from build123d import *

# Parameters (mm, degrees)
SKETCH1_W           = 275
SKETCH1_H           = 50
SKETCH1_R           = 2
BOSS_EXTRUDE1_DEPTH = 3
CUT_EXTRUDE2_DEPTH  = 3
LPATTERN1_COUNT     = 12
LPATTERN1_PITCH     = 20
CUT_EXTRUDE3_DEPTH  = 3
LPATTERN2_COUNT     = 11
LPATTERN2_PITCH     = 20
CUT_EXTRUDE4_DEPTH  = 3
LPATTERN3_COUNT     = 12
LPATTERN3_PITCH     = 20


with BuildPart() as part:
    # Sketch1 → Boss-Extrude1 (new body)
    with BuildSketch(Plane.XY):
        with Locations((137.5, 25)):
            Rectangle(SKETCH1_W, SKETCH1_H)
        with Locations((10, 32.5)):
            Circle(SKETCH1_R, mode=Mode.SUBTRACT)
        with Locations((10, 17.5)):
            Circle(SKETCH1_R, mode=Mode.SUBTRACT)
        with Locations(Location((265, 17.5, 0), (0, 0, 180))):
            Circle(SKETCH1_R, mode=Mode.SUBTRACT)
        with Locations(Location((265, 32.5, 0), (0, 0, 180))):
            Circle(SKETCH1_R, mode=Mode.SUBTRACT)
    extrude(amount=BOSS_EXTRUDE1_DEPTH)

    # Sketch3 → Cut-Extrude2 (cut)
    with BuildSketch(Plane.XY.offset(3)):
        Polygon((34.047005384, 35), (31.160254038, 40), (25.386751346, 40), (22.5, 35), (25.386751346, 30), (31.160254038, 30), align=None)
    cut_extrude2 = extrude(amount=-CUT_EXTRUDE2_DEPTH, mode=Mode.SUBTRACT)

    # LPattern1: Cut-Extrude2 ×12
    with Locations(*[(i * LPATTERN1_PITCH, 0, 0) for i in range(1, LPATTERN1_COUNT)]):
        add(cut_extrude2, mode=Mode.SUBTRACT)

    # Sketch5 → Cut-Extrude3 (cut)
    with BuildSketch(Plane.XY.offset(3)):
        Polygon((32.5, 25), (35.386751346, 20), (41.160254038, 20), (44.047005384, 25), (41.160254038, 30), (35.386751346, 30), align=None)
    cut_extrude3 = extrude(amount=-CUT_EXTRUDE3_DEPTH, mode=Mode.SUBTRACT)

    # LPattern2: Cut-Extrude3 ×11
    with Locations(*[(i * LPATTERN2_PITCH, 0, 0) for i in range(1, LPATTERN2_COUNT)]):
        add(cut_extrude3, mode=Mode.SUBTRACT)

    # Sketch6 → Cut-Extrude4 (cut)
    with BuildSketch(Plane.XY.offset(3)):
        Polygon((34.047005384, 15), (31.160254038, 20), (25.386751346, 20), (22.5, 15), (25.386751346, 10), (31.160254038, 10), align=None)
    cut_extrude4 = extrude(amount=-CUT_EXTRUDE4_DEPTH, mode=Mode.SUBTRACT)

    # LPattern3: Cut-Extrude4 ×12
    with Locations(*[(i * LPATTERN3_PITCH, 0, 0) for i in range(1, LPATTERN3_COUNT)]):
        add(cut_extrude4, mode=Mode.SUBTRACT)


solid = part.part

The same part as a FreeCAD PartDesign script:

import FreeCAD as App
import Part
import Sketcher
from FreeCAD import Vector
Q = App.Units.Quantity


def add_polygon(sketch, points):
    """Adds a closed chain of lines whose ends are joined by coincident constraints."""
    first, n = sketch.GeometryCount, len(points)
    for a, b in zip(points, points[1:] + points[:1]):
        sketch.addGeometry(Part.LineSegment(App.Vector(*a, 0), App.Vector(*b, 0)), False)
    for i in range(n):
        sketch.addConstraint(Sketcher.Constraint("Coincident", first + i, 2, first + (i + 1) % n, 1))

doc = App.newDocument("Part")
body = doc.addObject("PartDesign::Body", "Body")

# Sketch on XY plane
sketch1 = body.newObject("Sketcher::SketchObject", "Sketch")
sketch1.AttachmentSupport = (doc.getObject("XY_Plane"), [""])
sketch1.MapMode = "FlatFace"
add_polygon(sketch1, [(0, 50), (0, 0), (275, 0), (275, 50)])  # lines 0-3
sketch1.addGeometry(Part.Circle(Vector(10, 17.5, 0), Vector(0, 0, 1), 2), False)  # 4
sketch1.addGeometry(Part.Circle(Vector(265, 17.5, 0), Vector(0, 0, 1), 2), False)  # 5
sketch1.addGeometry(Part.Circle(Vector(10, 32.5, 0), Vector(0, 0, 1), 2), False)  # 6
sketch1.addGeometry(Part.Circle(Vector(265, 32.5, 0), Vector(0, 0, 1), 2), False)  # 7
sketch1.addConstraint([
    Sketcher.Constraint("Vertical", 0),
    Sketcher.Constraint("Horizontal", 1),
    Sketcher.Constraint("Vertical", 2),
    Sketcher.Constraint("Horizontal", 3),
    Sketcher.Constraint("Coincident", 0, 2, -1, 1),
    Sketcher.Constraint("Equal", 4, 5),
    Sketcher.Constraint("Equal", 5, 6),
    Sketcher.Constraint("Equal", 6, 7),
    Sketcher.Constraint("Horizontal", 4, 3, 5, 3),
    Sketcher.Constraint("Horizontal", 6, 3, 7, 3),
    Sketcher.Constraint("Vertical", 4, 3, 6, 3),
    Sketcher.Constraint("Vertical", 5, 3, 7, 3),
    Sketcher.Constraint("Diameter", 4, 4.0),
    Sketcher.Constraint("DistanceX", 1, 1, 1, 2, 275.0),
    Sketcher.Constraint("DistanceY", 0, 2, 0, 1, 50.0),
    Sketcher.Constraint("DistanceX", -1, 1, 4, 3, 10.0),
    Sketcher.Constraint("DistanceX", -1, 1, 5, 3, 265.0),
    Sketcher.Constraint("DistanceY", 4, 3, 6, 3, 15.0),
    Sketcher.Constraint("DistanceY", -1, 1, 4, 3, 17.5),
])
pad1 = body.newObject("PartDesign::Pad", "Pad")
pad1.Profile = sketch1
pad1.Length = 3

# Sketch on XY plane
sketch2 = body.newObject("Sketcher::SketchObject", "Sketch001")
sketch2.AttachmentSupport = (doc.getObject("XY_Plane"), [""])
sketch2.MapMode = "FlatFace"
sketch2.AttachmentOffset = App.Placement(Vector(0, 0, 3), App.Rotation())
add_polygon(sketch2, [(34.047005, 35), (31.160254, 40), (25.386751, 40), (22.5, 35), (25.386751, 30), (31.160254, 30)])  # lines 0-5
sketch2.addConstraint([
    Sketcher.Constraint("Horizontal", 1),
    Sketcher.Constraint("Horizontal", 4),
    Sketcher.Constraint("Parallel", 0, 3),
    Sketcher.Constraint("Parallel", 2, 5),
    Sketcher.Constraint("Horizontal", 2, 2, 5, 2),
    Sketcher.Constraint("Vertical", 1, 2, 3, 2),
    Sketcher.Constraint("Vertical", 0, 2, 4, 2),
    Sketcher.Constraint("Angle", 0, Q("120 deg")),
    Sketcher.Constraint("DistanceY", -1, 1, 0, 2, 40.0),
    Sketcher.Constraint("DistanceY", -1, 1, 2, 2, 35.0),
    Sketcher.Constraint("DistanceX", -1, 1, 2, 2, 22.5),
    Sketcher.Constraint("DistanceX", 1, 2, 1, 1, 5.773503),
])
pocket1 = body.newObject("PartDesign::Pocket", "Pocket")
pocket1.Profile = sketch2
pocket1.Length = 3
doc.recompute()

linearpattern = body.newObject("PartDesign::LinearPattern", "LinearPattern")
linearpattern.Originals = [pocket1]
linearpattern.Direction = (doc.getObject("X_Axis"), [""])
linearpattern.Mode = "offset"
linearpattern.Offset = 20
linearpattern.Occurrences = 12
body.Tip = linearpattern

# Sketch on XY plane
sketch3 = body.newObject("Sketcher::SketchObject", "Sketch002")
sketch3.AttachmentSupport = (doc.getObject("XY_Plane"), [""])
sketch3.MapMode = "FlatFace"
sketch3.AttachmentOffset = App.Placement(Vector(0, 0, 3), App.Rotation())
add_polygon(sketch3, [(32.5, 25), (35.386751, 20), (41.160254, 20), (44.047005, 25), (41.160254, 30), (35.386751, 30)])  # lines 0-5
sketch3.addConstraint([
    Sketcher.Constraint("Horizontal", 1),
    Sketcher.Constraint("Horizontal", 4),
    Sketcher.Constraint("Parallel", 0, 3),
    Sketcher.Constraint("Parallel", 2, 5),
    Sketcher.Constraint("Horizontal", 2, 2, 5, 2),
    Sketcher.Constraint("Vertical", 1, 2, 3, 2),
    Sketcher.Constraint("Vertical", 0, 2, 4, 2),
    Sketcher.Constraint("Angle", 0, Q("-60 deg")),
    Sketcher.Constraint("DistanceY", -1, 1, 0, 2, 20.0),
    Sketcher.Constraint("DistanceY", -1, 1, 2, 2, 25.0),
    Sketcher.Constraint("DistanceX", -1, 1, 5, 2, 32.5),
    Sketcher.Constraint("DistanceX", 1, 1, 1, 2, 5.773503),
])
pocket2 = body.newObject("PartDesign::Pocket", "Pocket001")
pocket2.Profile = sketch3
pocket2.Length = 3
doc.recompute()

linearpattern2 = body.newObject("PartDesign::LinearPattern", "LinearPattern001")
linearpattern2.Originals = [pocket2]
linearpattern2.Direction = (doc.getObject("X_Axis"), [""])
linearpattern2.Mode = "offset"
linearpattern2.Offset = 20
linearpattern2.Occurrences = 11
body.Tip = linearpattern2

# Sketch on XY plane
sketch4 = body.newObject("Sketcher::SketchObject", "Sketch003")
sketch4.AttachmentSupport = (doc.getObject("XY_Plane"), [""])
sketch4.MapMode = "FlatFace"
sketch4.AttachmentOffset = App.Placement(Vector(0, 0, 3), App.Rotation())
add_polygon(sketch4, [(34.047005, 15), (31.160254, 20), (25.386751, 20), (22.5, 15), (25.386751, 10), (31.160254, 10)])  # lines 0-5
sketch4.addConstraint([
    Sketcher.Constraint("Horizontal", 1),
    Sketcher.Constraint("Horizontal", 4),
    Sketcher.Constraint("Parallel", 0, 3),
    Sketcher.Constraint("Parallel", 2, 5),
    Sketcher.Constraint("Horizontal", 2, 2, 5, 2),
    Sketcher.Constraint("Vertical", 1, 2, 3, 2),
    Sketcher.Constraint("Vertical", 0, 2, 4, 2),
    Sketcher.Constraint("Angle", 0, Q("120 deg")),
    Sketcher.Constraint("DistanceY", -1, 1, 0, 2, 20.0),
    Sketcher.Constraint("DistanceY", -1, 1, 2, 2, 15.0),
    Sketcher.Constraint("DistanceX", -1, 1, 2, 2, 22.5),
    Sketcher.Constraint("DistanceX", 1, 2, 1, 1, 5.773503),
])
pocket3 = body.newObject("PartDesign::Pocket", "Pocket002")
pocket3.Profile = sketch4
pocket3.Length = 3
doc.recompute()

linearpattern3 = body.newObject("PartDesign::LinearPattern", "LinearPattern002")
linearpattern3.Originals = [pocket3]
linearpattern3.Direction = (doc.getObject("X_Axis"), [""])
linearpattern3.Mode = "offset"
linearpattern3.Offset = 20
linearpattern3.Occurrences = 12
body.Tip = linearpattern3

doc.recompute()
